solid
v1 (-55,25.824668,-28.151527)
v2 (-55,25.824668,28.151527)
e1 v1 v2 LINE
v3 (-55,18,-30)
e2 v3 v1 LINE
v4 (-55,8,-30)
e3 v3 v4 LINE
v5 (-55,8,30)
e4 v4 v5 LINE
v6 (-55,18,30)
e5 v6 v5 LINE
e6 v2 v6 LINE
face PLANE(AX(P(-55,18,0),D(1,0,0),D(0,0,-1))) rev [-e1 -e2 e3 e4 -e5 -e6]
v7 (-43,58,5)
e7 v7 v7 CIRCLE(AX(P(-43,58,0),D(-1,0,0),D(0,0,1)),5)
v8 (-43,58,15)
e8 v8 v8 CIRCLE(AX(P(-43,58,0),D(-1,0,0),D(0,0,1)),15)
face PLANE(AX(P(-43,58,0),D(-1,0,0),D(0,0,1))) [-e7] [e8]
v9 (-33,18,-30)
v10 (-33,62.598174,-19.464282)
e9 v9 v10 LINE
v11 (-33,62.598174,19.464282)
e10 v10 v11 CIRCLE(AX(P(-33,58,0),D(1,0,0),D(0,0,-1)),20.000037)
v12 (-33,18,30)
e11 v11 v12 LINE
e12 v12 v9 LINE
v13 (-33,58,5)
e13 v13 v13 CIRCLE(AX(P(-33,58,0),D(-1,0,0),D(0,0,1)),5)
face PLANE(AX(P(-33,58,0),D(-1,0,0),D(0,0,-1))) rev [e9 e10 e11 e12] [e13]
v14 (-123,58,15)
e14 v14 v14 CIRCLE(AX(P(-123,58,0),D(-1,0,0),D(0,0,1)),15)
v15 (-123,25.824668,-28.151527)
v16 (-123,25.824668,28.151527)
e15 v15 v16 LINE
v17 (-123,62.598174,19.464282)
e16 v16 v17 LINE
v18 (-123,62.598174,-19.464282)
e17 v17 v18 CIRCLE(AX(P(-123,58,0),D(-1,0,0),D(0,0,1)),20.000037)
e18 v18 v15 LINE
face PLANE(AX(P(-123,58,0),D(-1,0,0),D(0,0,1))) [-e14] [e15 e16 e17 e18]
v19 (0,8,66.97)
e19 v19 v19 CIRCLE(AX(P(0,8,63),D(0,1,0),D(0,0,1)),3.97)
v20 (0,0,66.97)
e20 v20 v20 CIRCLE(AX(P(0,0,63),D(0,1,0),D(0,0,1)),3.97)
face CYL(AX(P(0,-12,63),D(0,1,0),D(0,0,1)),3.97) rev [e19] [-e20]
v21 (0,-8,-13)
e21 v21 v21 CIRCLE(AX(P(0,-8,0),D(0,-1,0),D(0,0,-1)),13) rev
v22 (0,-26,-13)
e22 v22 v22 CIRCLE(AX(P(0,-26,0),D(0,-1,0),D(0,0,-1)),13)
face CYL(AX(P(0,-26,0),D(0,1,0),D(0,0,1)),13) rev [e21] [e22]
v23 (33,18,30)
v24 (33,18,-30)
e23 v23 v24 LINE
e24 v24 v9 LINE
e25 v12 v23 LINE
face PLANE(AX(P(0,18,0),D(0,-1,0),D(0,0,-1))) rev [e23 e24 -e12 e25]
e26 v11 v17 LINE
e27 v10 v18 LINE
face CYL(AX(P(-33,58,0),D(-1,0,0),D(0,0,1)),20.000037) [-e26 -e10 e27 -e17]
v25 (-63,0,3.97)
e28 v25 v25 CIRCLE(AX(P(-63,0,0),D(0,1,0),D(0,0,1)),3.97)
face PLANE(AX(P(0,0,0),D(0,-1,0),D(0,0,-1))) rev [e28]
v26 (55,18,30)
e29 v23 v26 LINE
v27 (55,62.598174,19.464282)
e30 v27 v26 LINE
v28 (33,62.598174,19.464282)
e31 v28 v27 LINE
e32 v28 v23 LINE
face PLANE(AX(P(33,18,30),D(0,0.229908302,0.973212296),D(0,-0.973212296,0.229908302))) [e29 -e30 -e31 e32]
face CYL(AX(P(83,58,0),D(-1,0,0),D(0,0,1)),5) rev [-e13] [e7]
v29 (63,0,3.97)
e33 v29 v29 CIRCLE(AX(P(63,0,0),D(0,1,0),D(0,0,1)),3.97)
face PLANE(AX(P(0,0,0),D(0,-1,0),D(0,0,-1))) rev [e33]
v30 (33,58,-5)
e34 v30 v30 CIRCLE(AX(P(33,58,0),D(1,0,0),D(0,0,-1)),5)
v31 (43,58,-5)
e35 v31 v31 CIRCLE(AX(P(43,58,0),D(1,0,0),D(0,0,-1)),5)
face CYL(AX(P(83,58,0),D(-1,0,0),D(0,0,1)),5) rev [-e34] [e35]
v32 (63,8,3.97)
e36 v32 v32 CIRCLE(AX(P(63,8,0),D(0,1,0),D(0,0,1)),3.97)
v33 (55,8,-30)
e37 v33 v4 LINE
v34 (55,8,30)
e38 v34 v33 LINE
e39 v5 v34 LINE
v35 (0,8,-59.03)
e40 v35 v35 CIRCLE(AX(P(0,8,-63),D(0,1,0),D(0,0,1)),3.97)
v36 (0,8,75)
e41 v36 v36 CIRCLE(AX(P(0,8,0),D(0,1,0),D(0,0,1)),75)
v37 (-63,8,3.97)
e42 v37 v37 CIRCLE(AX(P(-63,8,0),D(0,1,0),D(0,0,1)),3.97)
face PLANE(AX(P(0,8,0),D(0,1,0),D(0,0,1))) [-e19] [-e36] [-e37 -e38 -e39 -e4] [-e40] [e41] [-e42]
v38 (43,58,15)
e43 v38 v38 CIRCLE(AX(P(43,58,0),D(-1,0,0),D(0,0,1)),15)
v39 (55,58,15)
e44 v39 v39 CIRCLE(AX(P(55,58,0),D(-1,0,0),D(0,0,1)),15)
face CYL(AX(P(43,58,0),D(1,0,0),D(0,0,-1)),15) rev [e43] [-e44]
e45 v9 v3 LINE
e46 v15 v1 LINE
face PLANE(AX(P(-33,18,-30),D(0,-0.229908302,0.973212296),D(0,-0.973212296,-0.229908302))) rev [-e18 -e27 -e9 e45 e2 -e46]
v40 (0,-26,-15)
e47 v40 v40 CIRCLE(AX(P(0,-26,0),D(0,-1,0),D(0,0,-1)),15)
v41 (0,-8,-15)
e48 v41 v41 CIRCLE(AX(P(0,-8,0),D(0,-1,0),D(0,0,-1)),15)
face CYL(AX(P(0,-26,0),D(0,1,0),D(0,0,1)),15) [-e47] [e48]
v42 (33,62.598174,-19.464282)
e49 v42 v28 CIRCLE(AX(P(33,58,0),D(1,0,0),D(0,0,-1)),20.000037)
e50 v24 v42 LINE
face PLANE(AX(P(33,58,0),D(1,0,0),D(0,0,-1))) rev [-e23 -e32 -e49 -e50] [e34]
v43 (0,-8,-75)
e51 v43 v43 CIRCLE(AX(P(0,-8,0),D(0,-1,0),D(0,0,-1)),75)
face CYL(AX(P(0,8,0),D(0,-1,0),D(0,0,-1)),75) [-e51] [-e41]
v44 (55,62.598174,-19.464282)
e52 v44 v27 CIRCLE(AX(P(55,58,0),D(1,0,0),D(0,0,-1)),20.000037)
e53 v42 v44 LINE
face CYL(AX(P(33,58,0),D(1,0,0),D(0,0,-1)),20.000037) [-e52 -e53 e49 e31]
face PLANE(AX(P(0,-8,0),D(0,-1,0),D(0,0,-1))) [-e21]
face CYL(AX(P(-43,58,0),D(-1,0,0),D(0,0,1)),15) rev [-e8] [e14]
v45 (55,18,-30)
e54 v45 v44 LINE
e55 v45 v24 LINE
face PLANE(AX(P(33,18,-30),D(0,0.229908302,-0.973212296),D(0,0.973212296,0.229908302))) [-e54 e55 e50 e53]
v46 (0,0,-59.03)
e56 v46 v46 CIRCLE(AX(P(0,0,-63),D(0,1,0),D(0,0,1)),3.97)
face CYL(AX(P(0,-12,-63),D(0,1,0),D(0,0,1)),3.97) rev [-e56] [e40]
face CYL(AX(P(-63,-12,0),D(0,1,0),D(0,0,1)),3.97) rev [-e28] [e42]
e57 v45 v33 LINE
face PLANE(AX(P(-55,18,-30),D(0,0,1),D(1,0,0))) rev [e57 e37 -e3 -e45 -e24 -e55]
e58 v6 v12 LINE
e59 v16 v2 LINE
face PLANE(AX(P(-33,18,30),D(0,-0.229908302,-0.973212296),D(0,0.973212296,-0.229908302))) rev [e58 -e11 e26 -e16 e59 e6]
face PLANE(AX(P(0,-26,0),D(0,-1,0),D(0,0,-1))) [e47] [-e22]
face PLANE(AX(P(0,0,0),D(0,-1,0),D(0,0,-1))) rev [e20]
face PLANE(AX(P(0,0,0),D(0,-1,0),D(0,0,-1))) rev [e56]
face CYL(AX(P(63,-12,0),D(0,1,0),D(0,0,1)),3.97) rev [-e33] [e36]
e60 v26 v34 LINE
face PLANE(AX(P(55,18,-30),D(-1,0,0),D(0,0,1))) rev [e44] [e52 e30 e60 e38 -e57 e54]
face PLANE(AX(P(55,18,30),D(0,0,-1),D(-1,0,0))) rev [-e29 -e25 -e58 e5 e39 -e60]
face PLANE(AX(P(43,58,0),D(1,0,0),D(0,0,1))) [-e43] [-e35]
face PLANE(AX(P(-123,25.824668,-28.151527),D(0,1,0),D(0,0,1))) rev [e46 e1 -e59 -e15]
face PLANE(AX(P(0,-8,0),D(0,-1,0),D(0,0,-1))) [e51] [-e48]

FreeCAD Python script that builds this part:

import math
import FreeCAD as App
import Part
import Sketcher
from FreeCAD import Vector

doc = App.newDocument("Part")
body = doc.addObject("PartDesign::Body", "Body")

# Sketch on XZ plane
sketch1 = doc.addObject("Sketcher::SketchObject", "Sketch")
body.addObject(sketch1)
sketch1.AttachmentSupport = (doc.XZ_Plane, [""])
sketch1.MapMode = "FlatFace"
sketch1.addGeometry(Part.Circle(Vector(0, 0, 0), Vector(0, 0, 1), 75), False)
sketch1.addConstraint([
    Sketcher.Constraint("Coincident", 0, 3, -1, 1),
    Sketcher.Constraint("Diameter", 0, 150.0),
])
pad1 = doc.addObject("PartDesign::Pad", "Pad")
body.addObject(pad1)
pad1.Profile = sketch1
pad1.Length = 8
pad1.Reversed = True

# Sketch on XZ plane
sketch2 = doc.addObject("Sketcher::SketchObject", "Sketch001")
body.addObject(sketch2)
sketch2.AttachmentSupport = (doc.XZ_Plane, [""])
sketch2.MapMode = "FlatFace"
sketch2.AttachmentOffset = App.Placement(Vector(0, 0, -8), App.Rotation())
sketch2.addGeometry([
    Part.Circle(Vector(0, -63, 0), Vector(0, 0, 1), 3.97),
    Part.Circle(Vector(63, 0, 0), Vector(0, 0, 1), 3.97),
    Part.Circle(Vector(0, 63, 0), Vector(0, 0, 1), 3.97),
    Part.Circle(Vector(-63, 0, 0), Vector(0, 0, 1), 3.97),
], False)
sketch2.addConstraint([
    Sketcher.Constraint("Equal", 0, 1),
    Sketcher.Constraint("Equal", 1, 2),
    Sketcher.Constraint("Equal", 2, 3),
    Sketcher.Constraint("Symmetric", 0, 3, 2, 3, -1, 1),
    Sketcher.Constraint("Symmetric", 1, 3, 3, 3, -1, 1),
    Sketcher.Constraint("PointOnObject", 0, 3, -2),
    Sketcher.Constraint("PointOnObject", 1, 3, -1),
    Sketcher.Constraint("Diameter", 0, 7.94),
    Sketcher.Constraint("DistanceY", 0, 3, -1, 1, 63.0),
    Sketcher.Constraint("DistanceX", -1, 1, 1, 3, 63.0),
])
pocket1 = doc.addObject("PartDesign::Pocket", "Pocket")
body.addObject(pocket1)
pocket1.Profile = sketch2
pocket1.Length = 20
pocket1.Reversed = True

# Sketch on XZ plane
sketch3 = doc.addObject("Sketcher::SketchObject", "Sketch002")
body.addObject(sketch3)
sketch3.AttachmentSupport = (doc.XZ_Plane, [""])
sketch3.MapMode = "FlatFace"
sketch3.AttachmentOffset = App.Placement(Vector(0, 0, -8), App.Rotation())
sketch3.addGeometry([
    Part.LineSegment(Vector(-55, -30, 0), Vector(-55, 30, 0)),
    Part.LineSegment(Vector(-55, 30, 0), Vector(55, 30, 0)),
    Part.LineSegment(Vector(55, 30, 0), Vector(55, -30, 0)),
    Part.LineSegment(Vector(55, -30, 0), Vector(-55, -30, 0)),
], False)
sketch3.addConstraint([
    Sketcher.Constraint("Coincident", 0, 2, 1, 1),
    Sketcher.Constraint("Coincident", 1, 2, 2, 1),
    Sketcher.Constraint("Coincident", 2, 2, 3, 1),
    Sketcher.Constraint("Coincident", 3, 2, 0, 1),
    Sketcher.Constraint("Vertical", 0),
    Sketcher.Constraint("Horizontal", 1),
    Sketcher.Constraint("Vertical", 2),
    Sketcher.Constraint("Horizontal", 3),
    Sketcher.Constraint("Symmetric", 0, 2, 2, 2, -1, 1),
    Sketcher.Constraint("DistanceX", 1, 1, 1, 2, 110.0),
    Sketcher.Constraint("DistanceY", 0, 1, 0, 2, 60.0),
])
pad2 = doc.addObject("PartDesign::Pad", "Pad001")
body.addObject(pad2)
pad2.Profile = sketch3
pad2.Length = 10
pad2.Reversed = True

# Sketch on YZ plane
sketch4 = doc.addObject("Sketcher::SketchObject", "Sketch003")
body.addObject(sketch4)
sketch4.AttachmentSupport = (doc.YZ_Plane, [""])
sketch4.MapMode = "FlatFace"
sketch4.AttachmentOffset = App.Placement(Vector(0, 0, 55), App.Rotation())
sketch4.addGeometry([
    Part.LineSegment(Vector(18, 30, 0), Vector(18, -30, 0)),
    Part.LineSegment(Vector(18, -30, 0), Vector(62.598174, -19.464282, 0)),
    Part.ArcOfCircle(Part.Circle(Vector(58, 0, 0), Vector(0, 0, 1), 20.000037), math.radians(-76.708327), math.radians(76.708327)),
    Part.LineSegment(Vector(62.598174, 19.464282, 0), Vector(18, 30, 0)),
], False)
sketch4.addConstraint([
    Sketcher.Constraint("Coincident", 0, 2, 1, 1),
    Sketcher.Constraint("Tangent", 1, 2, 2, 1),
    Sketcher.Constraint("Tangent", 2, 2, 3, 1),
    Sketcher.Constraint("Coincident", 3, 2, 0, 1),
    Sketcher.Constraint("Vertical", 0),
    Sketcher.Constraint("Symmetric", 1, 2, 2, 2, -1),
    Sketcher.Constraint("DistanceY", 0, 2, 0, 1, 60.0),
    Sketcher.Constraint("DistanceX", -1, 1, 2, 3, 58.0),
    Sketcher.Constraint("DistanceX", -1, 1, 0, 2, 18.0),
    Sketcher.Constraint("Radius", 2, 20.000037),
])
pad3 = doc.addObject("PartDesign::Pad", "Pad002")
body.addObject(pad3)
pad3.Profile = sketch4
pad3.Length = 22
pad3.Reversed = True
doc.recompute()

mirrored = doc.addObject("PartDesign::Mirrored", "Mirrored")
body.addObject(mirrored)
mirrored.Originals = [pad3]
mirrored.MirrorPlane = (doc.YZ_Plane, [""])
body.Tip = mirrored

# Sketch on YZ plane
sketch5 = doc.addObject("Sketcher::SketchObject", "Sketch004")
body.addObject(sketch5)
sketch5.AttachmentSupport = (doc.YZ_Plane, [""])
sketch5.MapMode = "FlatFace"
sketch5.AttachmentOffset = App.Placement(Vector(0, 0, -55), App.Rotation())
sketch5.addGeometry(Part.Circle(Vector(58, 0, 0), Vector(0, 0, 1), 15), False)
sketch5.addConstraint([
    Sketcher.Constraint("PointOnObject", 0, 3, -1),
    Sketcher.Constraint("Diameter", 0, 30.0),
    Sketcher.Constraint("DistanceX", -1, 1, 0, 3, 58.0),
])
pocket2 = doc.addObject("PartDesign::Pocket", "Pocket001")
body.addObject(pocket2)
pocket2.Profile = sketch5
pocket2.Length = 12
pocket2.Reversed = True
doc.recompute()

mirrored2 = doc.addObject("PartDesign::Mirrored", "Mirrored001")
body.addObject(mirrored2)
mirrored2.Originals = [pocket2]
mirrored2.MirrorPlane = (doc.YZ_Plane, [""])
body.Tip = mirrored2

# Sketch on YZ plane
sketch6 = doc.addObject("Sketcher::SketchObject", "Sketch005")
body.addObject(sketch6)
sketch6.AttachmentSupport = (doc.YZ_Plane, [""])
sketch6.MapMode = "FlatFace"
sketch6.AttachmentOffset = App.Placement(Vector(0, 0, -43), App.Rotation())
sketch6.addGeometry(Part.Circle(Vector(58, 0, 0), Vector(0, 0, 1), 5), False)
sketch6.addConstraint([
    Sketcher.Constraint("PointOnObject", 0, 3, -1),
    Sketcher.Constraint("Diameter", 0, 10.0),
    Sketcher.Constraint("DistanceX", -1, 1, 0, 3, 58.0),
])
pocket3 = doc.addObject("PartDesign::Pocket", "Pocket002")
body.addObject(pocket3)
pocket3.Profile = sketch6
pocket3.Length = 126
pocket3.Reversed = True

# Sketch on YZ plane
sketch7 = doc.addObject("Sketcher::SketchObject", "Sketch006")
body.addObject(sketch7)
sketch7.AttachmentSupport = (doc.YZ_Plane, [""])
sketch7.MapMode = "FlatFace"
sketch7.AttachmentOffset = App.Placement(Vector(0, 0, -55), App.Rotation())
sketch7.addGeometry([
    Part.LineSegment(Vector(62.598174, -19.464282, 0), Vector(25.824668, -28.151527, 0)),  # 0
    Part.LineSegment(Vector(25.824668, -28.151527, 0), Vector(25.824668, 28.151527, 0)),  # 1
    Part.LineSegment(Vector(25.824668, 28.151527, 0), Vector(62.598174, 19.464282, 0)),  # 2
    Part.ArcOfCircle(Part.Circle(Vector(58, 0, 0), Vector(0, 0, 1), 20.000037), math.radians(-76.708327), math.radians(76.708327)),  # 3
    Part.Circle(Vector(58, 0, 0), Vector(0, 0, 1), 15),  # 4
], False)
sketch7.addConstraint([
    Sketcher.Constraint("Coincident", 0, 2, 1, 1),
    Sketcher.Constraint("Coincident", 1, 2, 2, 1),
    Sketcher.Constraint("Tangent", 2, 2, 3, 2),
    Sketcher.Constraint("Tangent", 3, 1, 0, 1),
    Sketcher.Constraint("Vertical", 1),
    Sketcher.Constraint("Coincident", 4, 3, 3, 3),
    Sketcher.Constraint("Symmetric", 2, 2, 3, 1, -1),
    Sketcher.Constraint("Diameter", 4, 30.0),
    Sketcher.Constraint("DistanceX", -1, 1, 3, 3, 58.0),
    Sketcher.Constraint("Radius", 3, 20.000037),
    Sketcher.Constraint("Distance", 0, 37.785698),
    Sketcher.Constraint("DistanceY", 1, 1, 1, 2, 56.303055),
])
pad4 = doc.addObject("PartDesign::Pad", "Pad003")
body.addObject(pad4)
pad4.Profile = sketch7
pad4.Length = 68
pad4.Reversed = True

# Sketch on XZ plane
sketch8 = doc.addObject("Sketcher::SketchObject", "Sketch007")
body.addObject(sketch8)
sketch8.AttachmentSupport = (doc.XZ_Plane, [""])
sketch8.MapMode = "FlatFace"
sketch8.addGeometry(Part.Circle(Vector(0, 0, 0), Vector(0, 0, 1), 75), False)
sketch8.addConstraint([
    Sketcher.Constraint("Coincident", 0, 3, -1, 1),
    Sketcher.Constraint("Diameter", 0, 150.0),
])
pad5 = doc.addObject("PartDesign::Pad", "Pad004")
body.addObject(pad5)
pad5.Profile = sketch8
pad5.Length = 8

# Sketch on XZ plane
sketch9 = doc.addObject("Sketcher::SketchObject", "Sketch008")
body.addObject(sketch9)
sketch9.AttachmentSupport = (doc.XZ_Plane, [""])
sketch9.MapMode = "FlatFace"
sketch9.AttachmentOffset = App.Placement(Vector(0, 0, 8), App.Rotation())
sketch9.addGeometry([
    Part.Circle(Vector(0, 0, 0), Vector(0, 0, 1), 15),
    Part.Circle(Vector(0, 0, 0), Vector(0, 0, 1), 13),
], False)
sketch9.addConstraint([
    Sketcher.Constraint("Coincident", 0, 3, -1, 1),
    Sketcher.Constraint("Coincident", 1, 3, -1, 1),
    Sketcher.Constraint("Diameter", 0, 30.0),
    Sketcher.Constraint("Diameter", 1, 26.0),
])
pad6 = doc.addObject("PartDesign::Pad", "Pad005")
body.addObject(pad6)
pad6.Profile = sketch9
pad6.Length = 18

doc.recompute()
